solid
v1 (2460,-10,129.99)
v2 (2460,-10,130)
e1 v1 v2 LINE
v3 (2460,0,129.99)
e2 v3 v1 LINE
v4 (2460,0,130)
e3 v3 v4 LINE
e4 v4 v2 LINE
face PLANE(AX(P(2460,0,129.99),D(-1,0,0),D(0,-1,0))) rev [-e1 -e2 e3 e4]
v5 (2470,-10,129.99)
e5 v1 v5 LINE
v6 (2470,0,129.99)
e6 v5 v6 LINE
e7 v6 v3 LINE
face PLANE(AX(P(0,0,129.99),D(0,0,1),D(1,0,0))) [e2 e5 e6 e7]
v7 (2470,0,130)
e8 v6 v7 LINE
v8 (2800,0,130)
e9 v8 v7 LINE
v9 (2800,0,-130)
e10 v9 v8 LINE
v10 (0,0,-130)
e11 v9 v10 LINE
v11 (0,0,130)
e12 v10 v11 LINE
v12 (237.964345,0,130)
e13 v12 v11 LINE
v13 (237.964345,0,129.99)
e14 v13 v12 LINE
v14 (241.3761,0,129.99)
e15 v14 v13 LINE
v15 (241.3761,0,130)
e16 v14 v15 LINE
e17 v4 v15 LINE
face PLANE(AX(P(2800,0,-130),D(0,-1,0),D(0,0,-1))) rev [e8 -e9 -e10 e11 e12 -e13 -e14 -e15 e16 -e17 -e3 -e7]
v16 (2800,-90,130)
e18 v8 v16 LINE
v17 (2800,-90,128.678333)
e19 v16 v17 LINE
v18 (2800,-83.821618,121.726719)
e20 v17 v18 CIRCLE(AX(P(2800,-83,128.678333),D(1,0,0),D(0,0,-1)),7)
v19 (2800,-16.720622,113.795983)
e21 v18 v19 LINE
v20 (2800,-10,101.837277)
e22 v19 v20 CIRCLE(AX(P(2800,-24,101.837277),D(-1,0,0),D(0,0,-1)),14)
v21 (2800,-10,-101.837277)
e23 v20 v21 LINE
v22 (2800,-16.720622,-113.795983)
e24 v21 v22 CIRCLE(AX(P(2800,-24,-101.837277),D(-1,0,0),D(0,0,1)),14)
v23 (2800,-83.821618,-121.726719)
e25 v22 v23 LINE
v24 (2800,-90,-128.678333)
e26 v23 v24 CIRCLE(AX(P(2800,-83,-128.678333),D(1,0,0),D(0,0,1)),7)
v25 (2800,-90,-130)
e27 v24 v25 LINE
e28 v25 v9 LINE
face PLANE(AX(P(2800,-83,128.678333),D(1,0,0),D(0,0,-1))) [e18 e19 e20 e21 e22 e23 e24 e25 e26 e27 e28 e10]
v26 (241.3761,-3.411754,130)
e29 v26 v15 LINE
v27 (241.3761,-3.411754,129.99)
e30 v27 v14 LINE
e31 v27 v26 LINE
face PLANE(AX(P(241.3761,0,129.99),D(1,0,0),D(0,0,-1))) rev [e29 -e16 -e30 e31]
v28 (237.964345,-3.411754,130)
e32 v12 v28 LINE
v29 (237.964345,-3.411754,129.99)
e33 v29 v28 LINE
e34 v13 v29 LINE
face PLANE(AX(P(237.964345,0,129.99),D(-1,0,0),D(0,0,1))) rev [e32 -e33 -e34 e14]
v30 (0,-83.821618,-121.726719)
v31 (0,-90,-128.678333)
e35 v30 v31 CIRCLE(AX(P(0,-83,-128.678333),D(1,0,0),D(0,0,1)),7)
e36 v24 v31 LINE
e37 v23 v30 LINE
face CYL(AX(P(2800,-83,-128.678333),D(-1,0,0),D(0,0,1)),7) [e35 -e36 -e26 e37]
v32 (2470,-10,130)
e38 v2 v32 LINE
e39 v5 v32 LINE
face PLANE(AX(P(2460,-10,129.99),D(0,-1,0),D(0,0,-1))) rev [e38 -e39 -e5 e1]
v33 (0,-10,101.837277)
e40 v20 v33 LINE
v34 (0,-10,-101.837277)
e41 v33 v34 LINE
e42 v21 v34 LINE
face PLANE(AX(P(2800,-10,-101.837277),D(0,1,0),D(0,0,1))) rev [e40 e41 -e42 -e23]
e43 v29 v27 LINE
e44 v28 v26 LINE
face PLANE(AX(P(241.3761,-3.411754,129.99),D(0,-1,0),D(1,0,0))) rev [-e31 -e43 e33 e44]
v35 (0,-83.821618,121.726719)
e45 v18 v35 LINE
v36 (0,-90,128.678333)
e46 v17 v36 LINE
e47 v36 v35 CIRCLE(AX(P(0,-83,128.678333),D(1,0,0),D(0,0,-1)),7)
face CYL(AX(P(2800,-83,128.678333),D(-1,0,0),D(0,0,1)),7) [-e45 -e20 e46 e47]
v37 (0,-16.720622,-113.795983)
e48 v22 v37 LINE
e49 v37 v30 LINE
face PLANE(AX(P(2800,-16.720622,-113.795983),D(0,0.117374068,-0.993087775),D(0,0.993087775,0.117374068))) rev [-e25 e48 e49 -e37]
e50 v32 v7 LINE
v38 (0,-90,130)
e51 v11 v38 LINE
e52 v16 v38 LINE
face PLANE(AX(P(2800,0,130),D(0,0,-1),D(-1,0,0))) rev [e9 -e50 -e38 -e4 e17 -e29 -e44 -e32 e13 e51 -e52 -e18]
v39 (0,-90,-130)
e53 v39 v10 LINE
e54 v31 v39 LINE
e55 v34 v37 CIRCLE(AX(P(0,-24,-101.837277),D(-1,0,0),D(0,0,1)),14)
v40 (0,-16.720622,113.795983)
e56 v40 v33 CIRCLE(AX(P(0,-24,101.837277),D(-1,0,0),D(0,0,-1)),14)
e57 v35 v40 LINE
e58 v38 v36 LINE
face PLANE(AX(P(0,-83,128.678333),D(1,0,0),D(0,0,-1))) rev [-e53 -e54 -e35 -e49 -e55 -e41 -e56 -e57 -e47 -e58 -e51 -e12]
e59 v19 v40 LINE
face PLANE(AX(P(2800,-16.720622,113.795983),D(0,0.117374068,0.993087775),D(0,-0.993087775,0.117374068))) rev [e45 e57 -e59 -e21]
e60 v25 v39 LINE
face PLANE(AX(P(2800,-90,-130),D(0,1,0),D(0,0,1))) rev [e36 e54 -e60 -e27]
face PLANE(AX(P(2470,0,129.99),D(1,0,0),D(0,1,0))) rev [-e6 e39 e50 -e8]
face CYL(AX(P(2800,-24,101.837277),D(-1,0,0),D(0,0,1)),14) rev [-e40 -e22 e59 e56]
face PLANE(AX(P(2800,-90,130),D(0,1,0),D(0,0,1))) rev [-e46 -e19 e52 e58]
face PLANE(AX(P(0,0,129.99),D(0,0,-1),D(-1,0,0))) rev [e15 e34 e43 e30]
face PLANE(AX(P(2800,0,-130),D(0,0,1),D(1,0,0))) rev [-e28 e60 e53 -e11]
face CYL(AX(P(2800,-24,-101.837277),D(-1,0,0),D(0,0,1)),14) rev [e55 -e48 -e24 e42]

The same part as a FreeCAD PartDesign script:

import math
import FreeCAD as App
import Part
import Sketcher


def add_polygon(sketch, points):
    """Adds a closed chain of lines whose ends are joined by coincident constraints."""
    first, n = sketch.GeometryCount, len(points)
    for a, b in zip(points, points[1:] + points[:1]):
        sketch.addGeometry(Part.LineSegment(App.Vector(*a, 0), App.Vector(*b, 0)), False)
    for i in range(n):
        sketch.addConstraint(Sketcher.Constraint("Coincident", first + i, 2, first + (i + 1) % n, 1))

doc = App.newDocument("Part")
params = doc.addObject("Spreadsheet::Sheet", "Params")
for row, (alias, value) in enumerate([
    ("sketch1_radius", "7 mm"),
    ("sketch1_radius2", "14 mm"),
    ("sketch1_width", "90 mm"),
    ("sketch1_height", "260 mm"),
    ("pad1_length", "2800 mm"),
    ("pocket1_length", "0.01 mm"),
    ("sketch3_width", "10 mm"),
    ("pad2_length", "0.01 mm"),
    ("sketch4_width", "10 mm"),
    ("pocket2_length", "0.01 mm"),
], start=1):
    params.set(f"A{row}", alias)
    params.set(f"B{row}", "=" + value)
    params.setAlias(f"B{row}", alias)

body = doc.addObject("PartDesign::Body", "Body")

sketch1 = body.newObject("Sketcher::SketchObject", "Sketch")
sketch1.AttachmentSupport = (doc.getObject("YZ_Plane"), [""])
sketch1.MapMode = "FlatFace"
sketch1.addGeometry(Part.LineSegment(App.Vector(0, -130, 0), App.Vector(0, 130, 0)), False)
sketch1.addGeometry(Part.LineSegment(App.Vector(0, 130, 0), App.Vector(-90, 130, 0)), False)
sketch1.addGeometry(Part.LineSegment(App.Vector(-90, 130, 0), App.Vector(-90, 128.7, 0)), False)
sketch1.addGeometry(Part.ArcOfCircle(Part.Circle(App.Vector(-83, 128.7, 0), App.Vector(0, 0, 1), 7), math.radians(180), math.radians(263)), False)
sketch1.addGeometry(Part.LineSegment(App.Vector(-83.8, 121.7, 0), App.Vector(-16.7, 113.8, 0)), False)
sketch1.addGeometry(Part.ArcOfCircle(Part.Circle(App.Vector(-24, 101.8, 0), App.Vector(0, 0, 1), 14), math.radians(0), math.radians(59)), False)
sketch1.addGeometry(Part.LineSegment(App.Vector(-10, 101.8, 0), App.Vector(-10, -101.8, 0)), False)
sketch1.addGeometry(Part.ArcOfCircle(Part.Circle(App.Vector(-24, -101.8, 0), App.Vector(0, 0, 1), 14), math.radians(-59), math.radians(0)), False)
sketch1.addGeometry(Part.LineSegment(App.Vector(-16.7, -113.8, 0), App.Vector(-83.8, -121.7, 0)), False)
sketch1.addGeometry(Part.ArcOfCircle(Part.Circle(App.Vector(-83, -128.7, 0), App.Vector(0, 0, 1), 7), math.radians(97), math.radians(180)), False)
sketch1.addGeometry(Part.LineSegment(App.Vector(-90, -128.7, 0), App.Vector(-90, -130, 0)), False)
sketch1.addGeometry(Part.LineSegment(App.Vector(-90, -130, 0), App.Vector(0, -130, 0)), False)
sketch1.addConstraint(Sketcher.Constraint("Coincident", 0, 2, 1, 1))
sketch1.addConstraint(Sketcher.Constraint("Coincident", 1, 2, 2, 1))
sketch1.addConstraint(Sketcher.Constraint("Tangent", 2, 2, 3, 1))
sketch1.addConstraint(Sketcher.Constraint("Tangent", 3, 2, 4, 1))
sketch1.addConstraint(Sketcher.Constraint("Coincident", 4, 2, 5, 2))
sketch1.addConstraint(Sketcher.Constraint("Tangent", 5, 1, 6, 1))
sketch1.addConstraint(Sketcher.Constraint("Tangent", 6, 2, 7, 2))
sketch1.addConstraint(Sketcher.Constraint("Coincident", 7, 1, 8, 1))
sketch1.addConstraint(Sketcher.Constraint("Tangent", 8, 2, 9, 1))
sketch1.addConstraint(Sketcher.Constraint("Tangent", 9, 2, 10, 1))
sketch1.addConstraint(Sketcher.Constraint("Coincident", 10, 2, 11, 1))
sketch1.addConstraint(Sketcher.Constraint("Coincident", 11, 2, 0, 1))
sketch1.addConstraint(Sketcher.Constraint("Vertical", 0))
sketch1.addConstraint(Sketcher.Constraint("Horizontal", 1))
sketch1.addConstraint(Sketcher.Constraint("Vertical", 2))
sketch1.addConstraint(Sketcher.Constraint("Vertical", 6))
sketch1.addConstraint(Sketcher.Constraint("Vertical", 10))
sketch1.addConstraint(Sketcher.Constraint("Horizontal", 11))
sketch1.addConstraint(Sketcher.Constraint("Equal", 5, 7))
sketch1.addConstraint(Sketcher.Constraint("Equal", 3, 9))
sketch1.addConstraint(Sketcher.Constraint("Symmetric", 0, 2, 11, 2, -1, 1))
sketch1.addConstraint(Sketcher.Constraint("Symmetric", 3, 3, 9, 3, -1))
sketch1.addConstraint(Sketcher.Constraint("Symmetric", 4, 2, 7, 1, -1))
sketch1.addConstraint(Sketcher.Constraint("Radius", 3, 7.0))
sketch1.addConstraint(Sketcher.Constraint("Radius", 5, 14.0))
sketch1.addConstraint(Sketcher.Constraint("DistanceX", 1, 2, 1, 1, 90.0))
sketch1.addConstraint(Sketcher.Constraint("DistanceY", 0, 1, 0, 2, 260.0))
sketch1.addConstraint(Sketcher.Constraint("DistanceX", 5, 3, -1, 1, 24.0))
sketch1.addConstraint(Sketcher.Constraint("Distance", 4, 67.568042))
sketch1.addConstraint(Sketcher.Constraint("DistanceY", 2, 2, 2, 1, 1.321667))
sketch1.addConstraint(Sketcher.Constraint("DistanceY", 6, 2, 6, 1, 203.674553))
sketch1.setExpression("Constraints[23]", "Params.sketch1_radius")
sketch1.setExpression("Constraints[24]", "Params.sketch1_radius2")
sketch1.setExpression("Constraints[25]", "Params.sketch1_width")
sketch1.setExpression("Constraints[26]", "Params.sketch1_height")
pad1 = body.newObject("PartDesign::Pad", "Pad")
pad1.Profile = sketch1
pad1.setExpression("Length", "Params.pad1_length")

sketch2 = body.newObject("Sketcher::SketchObject", "Sketch001")
sketch2.AttachmentSupport = (doc.getObject("XY_Plane"), [""])
sketch2.MapMode = "FlatFace"
sketch2.AttachmentOffset = App.Placement(App.Vector(0, 0, 130), App.Rotation())
add_polygon(sketch2, [(238, 0), (238, -3.4), (241.4, -3.4), (241.4, 0)])
sketch2.addConstraint(Sketcher.Constraint("Vertical", 0))
sketch2.addConstraint(Sketcher.Constraint("Horizontal", 1))
sketch2.addConstraint(Sketcher.Constraint("Vertical", 2))
sketch2.addConstraint(Sketcher.Constraint("Horizontal", 3))
sketch2.addConstraint(Sketcher.Constraint("PointOnObject", 2, 2, -1))
sketch2.addConstraint(Sketcher.Constraint("Equal", 3, 0))
sketch2.addConstraint(Sketcher.Constraint("DistanceX", -1, 1, 1, 2, 241.3761))
sketch2.addConstraint(Sketcher.Constraint("DistanceX", 1, 1, 1, 2, 3.411754))
pocket1 = body.newObject("PartDesign::Pocket", "Pocket")
pocket1.Profile = sketch2
pocket1.setExpression("Length", "Params.pocket1_length")

sketch3 = body.newObject("Sketcher::SketchObject", "Sketch002")
sketch3.AttachmentSupport = (doc.getObject("XY_Plane"), [""])
sketch3.MapMode = "FlatFace"
sketch3.AttachmentOffset = App.Placement(App.Vector(0, 0, 130), App.Rotation())
add_polygon(sketch3, [(2460, 0), (2460, -10), (2470, -10), (2470, 0)])
sketch3.addConstraint(Sketcher.Constraint("Vertical", 0))
sketch3.addConstraint(Sketcher.Constraint("Horizontal", 1))
sketch3.addConstraint(Sketcher.Constraint("Vertical", 2))
sketch3.addConstraint(Sketcher.Constraint("Horizontal", 3))
sketch3.addConstraint(Sketcher.Constraint("PointOnObject", 2, 2, -1))
sketch3.addConstraint(Sketcher.Constraint("Equal", 3, 0))
sketch3.addConstraint(Sketcher.Constraint("DistanceX", 1, 1, 1, 2, 10.0))
sketch3.addConstraint(Sketcher.Constraint("DistanceX", -1, 1, 0, 2, 2460.0))
sketch3.setExpression("Constraints[10]", "Params.sketch3_width")
pad2 = body.newObject("PartDesign::Pad", "Pad001")
pad2.Profile = sketch3
pad2.setExpression("Length", "Params.pad2_length")
pad2.Reversed = True

sketch4 = body.newObject("Sketcher::SketchObject", "Sketch003")
sketch4.AttachmentSupport = (doc.getObject("XY_Plane"), [""])
sketch4.MapMode = "FlatFace"
sketch4.AttachmentOffset = App.Placement(App.Vector(0, 0, 130), App.Rotation())
add_polygon(sketch4, [(2460, 0), (2460, -10), (2470, -10), (2470, 0)])
sketch4.addConstraint(Sketcher.Constraint("Vertical", 0))
sketch4.addConstraint(Sketcher.Constraint("Horizontal", 1))
sketch4.addConstraint(Sketcher.Constraint("Vertical", 2))
sketch4.addConstraint(Sketcher.Constraint("Horizontal", 3))
sketch4.addConstraint(Sketcher.Constraint("PointOnObject", 2, 2, -1))
sketch4.addConstraint(Sketcher.Constraint("Equal", 3, 0))
sketch4.addConstraint(Sketcher.Constraint("DistanceX", 1, 1, 1, 2, 10.0))
sketch4.addConstraint(Sketcher.Constraint("DistanceX", -1, 1, 0, 2, 2460.0))
sketch4.setExpression("Constraints[10]", "Params.sketch4_width")
pocket2 = body.newObject("PartDesign::Pocket", "Pocket001")
pocket2.Profile = sketch4
pocket2.setExpression("Length", "Params.pocket2_length")

doc.recompute()
